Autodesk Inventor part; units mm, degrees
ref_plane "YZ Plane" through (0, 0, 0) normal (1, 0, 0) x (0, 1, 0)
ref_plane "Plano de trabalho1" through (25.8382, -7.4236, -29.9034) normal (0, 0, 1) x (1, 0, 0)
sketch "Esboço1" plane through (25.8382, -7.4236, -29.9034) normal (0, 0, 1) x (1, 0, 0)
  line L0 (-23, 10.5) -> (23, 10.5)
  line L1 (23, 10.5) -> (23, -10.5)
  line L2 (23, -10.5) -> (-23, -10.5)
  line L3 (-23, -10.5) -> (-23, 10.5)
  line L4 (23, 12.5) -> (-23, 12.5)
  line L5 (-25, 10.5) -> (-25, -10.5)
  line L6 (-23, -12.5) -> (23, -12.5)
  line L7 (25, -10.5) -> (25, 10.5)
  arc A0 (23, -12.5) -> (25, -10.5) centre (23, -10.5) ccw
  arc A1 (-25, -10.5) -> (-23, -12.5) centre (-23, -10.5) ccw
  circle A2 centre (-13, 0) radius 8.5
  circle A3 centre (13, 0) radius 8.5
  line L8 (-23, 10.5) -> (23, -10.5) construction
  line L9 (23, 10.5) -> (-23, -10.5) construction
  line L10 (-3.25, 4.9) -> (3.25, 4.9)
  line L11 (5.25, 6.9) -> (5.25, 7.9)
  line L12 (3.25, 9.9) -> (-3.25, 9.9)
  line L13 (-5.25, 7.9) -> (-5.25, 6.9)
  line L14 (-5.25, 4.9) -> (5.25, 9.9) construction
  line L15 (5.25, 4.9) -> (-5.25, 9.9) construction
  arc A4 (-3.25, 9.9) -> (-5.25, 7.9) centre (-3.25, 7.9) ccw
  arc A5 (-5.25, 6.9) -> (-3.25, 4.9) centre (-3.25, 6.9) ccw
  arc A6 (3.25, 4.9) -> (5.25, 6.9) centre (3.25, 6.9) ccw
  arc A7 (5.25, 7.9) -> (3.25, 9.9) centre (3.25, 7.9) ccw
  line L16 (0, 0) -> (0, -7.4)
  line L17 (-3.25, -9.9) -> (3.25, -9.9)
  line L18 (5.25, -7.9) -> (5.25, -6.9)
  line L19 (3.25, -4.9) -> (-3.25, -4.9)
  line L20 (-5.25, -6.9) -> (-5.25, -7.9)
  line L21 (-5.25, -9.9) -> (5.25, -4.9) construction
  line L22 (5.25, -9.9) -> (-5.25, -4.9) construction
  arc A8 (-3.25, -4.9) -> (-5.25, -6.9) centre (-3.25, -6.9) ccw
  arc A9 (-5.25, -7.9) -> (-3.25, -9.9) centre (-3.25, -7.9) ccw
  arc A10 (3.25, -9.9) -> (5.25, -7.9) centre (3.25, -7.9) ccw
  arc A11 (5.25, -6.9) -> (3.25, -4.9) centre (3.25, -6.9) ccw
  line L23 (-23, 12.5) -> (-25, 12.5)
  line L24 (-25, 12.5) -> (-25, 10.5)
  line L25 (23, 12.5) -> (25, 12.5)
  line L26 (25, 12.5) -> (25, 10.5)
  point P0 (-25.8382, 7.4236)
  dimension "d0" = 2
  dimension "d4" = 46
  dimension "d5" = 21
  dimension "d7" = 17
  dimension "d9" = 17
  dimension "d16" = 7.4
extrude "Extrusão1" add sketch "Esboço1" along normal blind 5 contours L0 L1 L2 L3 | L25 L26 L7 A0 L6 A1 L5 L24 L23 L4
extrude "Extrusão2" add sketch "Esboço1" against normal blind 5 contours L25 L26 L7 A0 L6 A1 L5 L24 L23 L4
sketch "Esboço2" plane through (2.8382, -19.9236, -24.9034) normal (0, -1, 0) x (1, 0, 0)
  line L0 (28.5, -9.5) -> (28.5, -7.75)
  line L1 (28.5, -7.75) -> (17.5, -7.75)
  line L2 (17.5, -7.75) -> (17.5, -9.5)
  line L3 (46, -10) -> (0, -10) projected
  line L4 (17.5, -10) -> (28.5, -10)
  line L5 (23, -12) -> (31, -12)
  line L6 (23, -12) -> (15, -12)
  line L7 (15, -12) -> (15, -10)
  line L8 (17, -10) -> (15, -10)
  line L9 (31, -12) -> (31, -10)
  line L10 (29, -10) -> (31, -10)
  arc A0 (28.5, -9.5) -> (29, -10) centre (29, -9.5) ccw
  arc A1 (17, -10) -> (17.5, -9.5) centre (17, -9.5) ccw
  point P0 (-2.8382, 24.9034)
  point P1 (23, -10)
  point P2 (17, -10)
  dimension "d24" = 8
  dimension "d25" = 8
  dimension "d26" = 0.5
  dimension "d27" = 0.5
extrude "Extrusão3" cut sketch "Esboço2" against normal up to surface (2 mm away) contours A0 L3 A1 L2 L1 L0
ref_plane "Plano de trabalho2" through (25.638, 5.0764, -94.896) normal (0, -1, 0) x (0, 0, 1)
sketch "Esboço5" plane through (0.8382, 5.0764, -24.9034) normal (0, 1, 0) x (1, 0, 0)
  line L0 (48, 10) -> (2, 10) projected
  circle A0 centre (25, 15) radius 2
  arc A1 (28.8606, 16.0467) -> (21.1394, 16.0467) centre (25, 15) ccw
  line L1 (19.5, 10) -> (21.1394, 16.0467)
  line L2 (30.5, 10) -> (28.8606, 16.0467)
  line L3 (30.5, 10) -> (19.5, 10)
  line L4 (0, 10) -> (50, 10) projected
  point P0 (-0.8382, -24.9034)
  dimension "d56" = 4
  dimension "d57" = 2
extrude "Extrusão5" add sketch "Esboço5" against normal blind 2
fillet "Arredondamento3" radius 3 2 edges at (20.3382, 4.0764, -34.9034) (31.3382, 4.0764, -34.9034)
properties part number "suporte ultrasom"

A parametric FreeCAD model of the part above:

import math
import FreeCAD as App
import Part
import Sketcher
Q = App.Units.Quantity


def edges_at(feature, points):
    """Names of the edges that pass closest to the given points."""
    edges = feature.Shape.Edges
    near = lambda p: min(range(len(edges)), key=lambda i: edges[i].distToShape(Part.Vertex(*p))[0])
    return sorted({f"Edge{near(p) + 1}" for p in points})

doc = App.newDocument("Part")
body = doc.addObject("PartDesign::Body", "Body")

sketch1 = body.newObject("Sketcher::SketchObject", "Sketch")
sketch1.AttachmentSupport = (doc.getObject("XY_Plane"), [""])
sketch1.MapMode = "FlatFace"
sketch1.AttachmentOffset = App.Placement(App.Vector(0, 0, -29.9034), App.Rotation())
sketch1.addGeometry([
    Part.LineSegment(App.Vector(50.8, 5.1, 0), App.Vector(0.8, 5.1, 0)),
    Part.LineSegment(App.Vector(0.8, 5.1, 0), App.Vector(0.8, -17.9, 0)),
    Part.ArcOfCircle(Part.Circle(App.Vector(2.8, -17.9, 0), App.Vector(0, 0, 1), 2), math.radians(180), math.radians(270)),
    Part.LineSegment(App.Vector(2.8, -19.9, 0), App.Vector(48.8, -19.9, 0)),
    Part.ArcOfCircle(Part.Circle(App.Vector(48.8, -17.9, 0), App.Vector(0, 0, 1), 2), math.radians(-90), math.radians(0)),
    Part.LineSegment(App.Vector(50.8, -17.9, 0), App.Vector(50.8, 5.1, 0)),
    Part.LineSegment(App.Vector(29.1, -17.3, 0), App.Vector(22.6, -17.3, 0)),
    Part.ArcOfCircle(Part.Circle(App.Vector(22.6, -15.3, 0), App.Vector(0, 0, 1), 2), math.radians(180), math.radians(270)),
    Part.LineSegment(App.Vector(20.6, -15.3, 0), App.Vector(20.6, -14.3, 0)),
    Part.ArcOfCircle(Part.Circle(App.Vector(22.6, -14.3, 0), App.Vector(0, 0, 1), 2), math.radians(90), math.radians(180)),
    Part.LineSegment(App.Vector(22.6, -12.3, 0), App.Vector(29.1, -12.3, 0)),
    Part.ArcOfCircle(Part.Circle(App.Vector(29.1, -14.3, 0), App.Vector(0, 0, 1), 2), math.radians(0), math.radians(90)),
    Part.LineSegment(App.Vector(31.1, -14.3, 0), App.Vector(31.1, -15.3, 0)),
    Part.ArcOfCircle(Part.Circle(App.Vector(29.1, -15.3, 0), App.Vector(0, 0, 1), 2), math.radians(-90), math.radians(0)),
    Part.Circle(App.Vector(12.8, -7.4, 0), App.Vector(0, 0, 1), 8.5),
    Part.Circle(App.Vector(38.8, -7.4, 0), App.Vector(0, 0, 1), 8.5),
    Part.LineSegment(App.Vector(29.1, -2.5, 0), App.Vector(22.6, -2.5, 0)),
    Part.ArcOfCircle(Part.Circle(App.Vector(22.6, -0.5, 0), App.Vector(0, 0, 1), 2), math.radians(180), math.radians(270)),
    Part.LineSegment(App.Vector(20.6, -0.5, 0), App.Vector(20.6, 0.5, 0)),
    Part.ArcOfCircle(Part.Circle(App.Vector(22.6, 0.5, 0), App.Vector(0, 0, 1), 2), math.radians(90), math.radians(180)),
    Part.LineSegment(App.Vector(22.6, 2.5, 0), App.Vector(29.1, 2.5, 0)),
    Part.ArcOfCircle(Part.Circle(App.Vector(29.1, 0.5, 0), App.Vector(0, 0, 1), 2), math.radians(0), math.radians(90)),
    Part.LineSegment(App.Vector(31.1, 0.5, 0), App.Vector(31.1, -0.5, 0)),
    Part.ArcOfCircle(Part.Circle(App.Vector(29.1, -0.5, 0), App.Vector(0, 0, 1), 2), math.radians(-90), math.radians(0)),
], False)
sketch1.addConstraint([
    Sketcher.Constraint("Coincident", 0, 2, 1, 1),
    Sketcher.Constraint("Tangent", 1, 2, 2, 1),
    Sketcher.Constraint("Tangent", 2, 2, 3, 1),
    Sketcher.Constraint("Tangent", 3, 2, 4, 1),
    Sketcher.Constraint("Tangent", 4, 2, 5, 1),
    Sketcher.Constraint("Coincident", 5, 2, 0, 1),
    Sketcher.Constraint("Tangent", 6, 2, 7, 2),
    Sketcher.Constraint("Tangent", 7, 1, 8, 1),
    Sketcher.Constraint("Tangent", 8, 2, 9, 2),
    Sketcher.Constraint("Tangent", 9, 1, 10, 1),
    Sketcher.Constraint("Tangent", 10, 2, 11, 2),
    Sketcher.Constraint("Tangent", 11, 1, 12, 1),
    Sketcher.Constraint("Tangent", 12, 2, 13, 2),
    Sketcher.Constraint("Tangent", 13, 1, 6, 1),
    Sketcher.Constraint("Tangent", 16, 2, 17, 2),
    Sketcher.Constraint("Tangent", 17, 1, 18, 1),
    Sketcher.Constraint("Tangent", 18, 2, 19, 2),
    Sketcher.Constraint("Tangent", 19, 1, 20, 1),
    Sketcher.Constraint("Tangent", 20, 2, 21, 2),
    Sketcher.Constraint("Tangent", 21, 1, 22, 1),
    Sketcher.Constraint("Tangent", 22, 2, 23, 2),
    Sketcher.Constraint("Tangent", 23, 1, 16, 1),
    Sketcher.Constraint("Horizontal", 0),
    Sketcher.Constraint("Vertical", 1),
    Sketcher.Constraint("Horizontal", 3),
    Sketcher.Constraint("Vertical", 5),
    Sketcher.Constraint("Horizontal", 6),
    Sketcher.Constraint("Vertical", 8),
    Sketcher.Constraint("Horizontal", 10),
    Sketcher.Constraint("Vertical", 12),
    Sketcher.Constraint("Horizontal", 16),
    Sketcher.Constraint("Vertical", 18),
    Sketcher.Constraint("Horizontal", 20),
    Sketcher.Constraint("Vertical", 22),
    Sketcher.Constraint("Equal", 2, 4),
    Sketcher.Constraint("Equal", 4, 7),
    Sketcher.Constraint("Equal", 7, 9),
    Sketcher.Constraint("Equal", 9, 11),
    Sketcher.Constraint("Equal", 11, 13),
    Sketcher.Constraint("Equal", 14, 15),
    Sketcher.Constraint("Equal", 13, 17),
    Sketcher.Constraint("Equal", 17, 19),
    Sketcher.Constraint("Equal", 19, 21),
    Sketcher.Constraint("Equal", 21, 23),
    Sketcher.Constraint("Horizontal", 14, 3, 15, 3),
    Sketcher.Constraint("Vertical", 9, 3, 17, 3),
    Sketcher.Constraint("Vertical", 13, 3, 21, 3),
    Sketcher.Constraint("Equal", 12, 18),
    Sketcher.Constraint("Diameter", 14, Q("17 mm")),
    Sketcher.Constraint("Radius", 2, Q("2 mm")),
    Sketcher.Constraint("DistanceX", 3, 1, 3, 2, Q("46 mm")),
    Sketcher.Constraint("DistanceY", 1, 2, 1, 1, Q("23 mm")),
    Sketcher.Constraint("DistanceY", 8, 1, 8, 2, Q("1 mm")),
    Sketcher.Constraint("DistanceX", 6, 2, 6, 1, Q("6.5 mm")),
    Sketcher.Constraint("DistanceX", 2, 3, 14, 3, Q("10 mm")),
    Sketcher.Constraint("DistanceX", 15, 3, 4, 3, Q("10 mm")),
    Sketcher.Constraint("DistanceY", 2, 3, 7, 3, Q("2.6 mm")),
    Sketcher.Constraint("DistanceY", 9, 3, 14, 3, Q("6.9 mm")),
    Sketcher.Constraint("DistanceY", 14, 3, 17, 3, Q("6.9 mm")),
    Sketcher.Constraint("DistanceX", 2, 3, 7, 3, Q("19.75 mm")),
    Sketcher.Constraint("DistanceX", -1, 1, 2, 3, Q("2.8382 mm")),
    Sketcher.Constraint("DistanceY", 2, 3, -1, 1, Q("17.9236 mm")),
])
pad1 = body.newObject("PartDesign::Pad", "Pad")
pad1.Profile = sketch1
pad1.Length = 5

sketch2 = body.newObject("Sketcher::SketchObject", "Sketch001")
sketch2.AttachmentSupport = (doc.getObject("XY_Plane"), [""])
sketch2.MapMode = "FlatFace"
sketch2.AttachmentOffset = App.Placement(App.Vector(0, 0, -29.9034), App.Rotation())
sketch2.addGeometry([
    Part.LineSegment(App.Vector(50.8, 5.1, 0), App.Vector(0.8, 5.1, 0)),
    Part.LineSegment(App.Vector(0.8, 5.1, 0), App.Vector(0.8, -17.9, 0)),
    Part.ArcOfCircle(Part.Circle(App.Vector(2.8, -17.9, 0), App.Vector(0, 0, 1), 2), math.radians(180), math.radians(270)),
    Part.LineSegment(App.Vector(2.8, -19.9, 0), App.Vector(48.8, -19.9, 0)),
    Part.ArcOfCircle(Part.Circle(App.Vector(48.8, -17.9, 0), App.Vector(0, 0, 1), 2), math.radians(-90), math.radians(0)),
    Part.LineSegment(App.Vector(50.8, -17.9, 0), App.Vector(50.8, 5.1, 0)),
    Part.LineSegment(App.Vector(2.8, -17.9, 0), App.Vector(2.8, 3.1, 0)),
    Part.LineSegment(App.Vector(2.8, 3.1, 0), App.Vector(48.8, 3.1, 0)),
    Part.LineSegment(App.Vector(48.8, 3.1, 0), App.Vector(48.8, -17.9, 0)),
    Part.LineSegment(App.Vector(48.8, -17.9, 0), App.Vector(2.8, -17.9, 0)),
], False)
sketch2.addConstraint([
    Sketcher.Constraint("Coincident", 0, 2, 1, 1),
    Sketcher.Constraint("Tangent", 1, 2, 2, 1),
    Sketcher.Constraint("Tangent", 2, 2, 3, 1),
    Sketcher.Constraint("Tangent", 3, 2, 4, 1),
    Sketcher.Constraint("Tangent", 4, 2, 5, 1),
    Sketcher.Constraint("Coincident", 5, 2, 0, 1),
    Sketcher.Constraint("Coincident", 6, 2, 7, 1),
    Sketcher.Constraint("Coincident", 7, 2, 8, 1),
    Sketcher.Constraint("Coincident", 8, 2, 9, 1),
    Sketcher.Constraint("Coincident", 9, 2, 6, 1),
    Sketcher.Constraint("Horizontal", 0),
    Sketcher.Constraint("Vertical", 1),
    Sketcher.Constraint("Horizontal", 3),
    Sketcher.Constraint("Vertical", 5),
    Sketcher.Constraint("Vertical", 6),
    Sketcher.Constraint("Horizontal", 7),
    Sketcher.Constraint("Vertical", 8),
    Sketcher.Constraint("Horizontal", 9),
    Sketcher.Constraint("Coincident", 8, 2, 4, 3),
    Sketcher.Constraint("Coincident", 9, 2, 2, 3),
    Sketcher.Constraint("Radius", 2, Q("2 mm")),
    Sketcher.Constraint("DistanceX", 3, 1, 3, 2, Q("46 mm")),
    Sketcher.Constraint("DistanceY", 6, 1, 6, 2, Q("21 mm")),
    Sketcher.Constraint("DistanceY", 6, 2, 0, 2, Q("2 mm")),
    Sketcher.Constraint("DistanceX", -1, 1, 2, 3, Q("2.8382 mm")),
    Sketcher.Constraint("DistanceY", 2, 3, -1, 1, Q("17.9236 mm")),
])
pad2 = body.newObject("PartDesign::Pad", "Pad001")
pad2.Profile = sketch2
pad2.Length = 5
pad2.Reversed = True

sketch3 = body.newObject("Sketcher::SketchObject", "Sketch002")
sketch3.AttachmentSupport = (doc.getObject("XZ_Plane"), [""])
sketch3.MapMode = "FlatFace"
sketch3.AttachmentOffset = App.Placement(App.Vector(0, 0, 19.9236), App.Rotation())
sketch3.addGeometry([
    Part.ArcOfCircle(Part.Circle(App.Vector(31.8, -34.4, 0), App.Vector(0, 0, 1), 0.5), math.radians(180), math.radians(270)),
    Part.LineSegment(App.Vector(31.3, -34.4, 0), App.Vector(31.3, -32.7, 0)),
    Part.LineSegment(App.Vector(31.3, -32.7, 0), App.Vector(20.3, -32.7, 0)),
    Part.LineSegment(App.Vector(20.3, -32.7, 0), App.Vector(20.3, -34.4, 0)),
    Part.ArcOfCircle(Part.Circle(App.Vector(19.8, -34.4, 0), App.Vector(0, 0, 1), 0.5), math.radians(-90), math.radians(0)),
    Part.LineSegment(App.Vector(19.8, -34.9, 0), App.Vector(31.8, -34.9, 0)),
], False)
sketch3.addConstraint([
    Sketcher.Constraint("Tangent", 0, 1, 1, 1),
    Sketcher.Constraint("Coincident", 1, 2, 2, 1),
    Sketcher.Constraint("Coincident", 2, 2, 3, 1),
    Sketcher.Constraint("Tangent", 3, 2, 4, 2),
    Sketcher.Constraint("Tangent", 4, 1, 5, 1),
    Sketcher.Constraint("Tangent", 5, 2, 0, 2),
    Sketcher.Constraint("Vertical", 1),
    Sketcher.Constraint("Horizontal", 2),
    Sketcher.Constraint("Vertical", 3),
    Sketcher.Constraint("Horizontal", 5),
    Sketcher.Constraint("Equal", 0, 4),
    Sketcher.Constraint("Radius", 0, Q("0.5 mm")),
    Sketcher.Constraint("DistanceX", 2, 2, 2, 1, Q("11 mm")),
    Sketcher.Constraint("DistanceY", 1, 1, 1, 2, Q("1.75 mm")),
    Sketcher.Constraint("DistanceX", -1, 1, 0, 3, Q("31.8382 mm")),
    Sketcher.Constraint("DistanceY", 0, 3, -1, 1, Q("34.4034 mm")),
])
pocket1 = body.newObject("PartDesign::Pocket", "Pocket")
pocket1.Profile = sketch3
pocket1.Length = 2

sketch4 = body.newObject("Sketcher::SketchObject", "Sketch003")
sketch4.AttachmentSupport = (doc.getObject("XZ_Plane"), [""])
sketch4.MapMode = "FlatFace"
sketch4.AttachmentOffset = App.Placement(App.Vector(0, 0, -5.0764), App.Rotation())
sketch4.addGeometry([
    Part.LineSegment(App.Vector(20.3, -34.9, 0), App.Vector(31.3, -34.9, 0)),
    Part.LineSegment(App.Vector(31.3, -34.9, 0), App.Vector(29.7, -41, 0)),
    Part.ArcOfCircle(Part.Circle(App.Vector(25.8, -39.9, 0), App.Vector(0, 0, 1), 4), math.radians(-165), math.radians(-15)),
    Part.LineSegment(App.Vector(22, -41, 0), App.Vector(20.3, -34.9, 0)),
    Part.Circle(App.Vector(25.8, -39.9, 0), App.Vector(0, 0, 1), 2),
], False)
sketch4.addConstraint([
    Sketcher.Constraint("Coincident", 0, 2, 1, 1),
    Sketcher.Constraint("Tangent", 1, 2, 2, 2),
    Sketcher.Constraint("Tangent", 2, 1, 3, 1),
    Sketcher.Constraint("Coincident", 3, 2, 0, 1),
    Sketcher.Constraint("Horizontal", 0),
    Sketcher.Constraint("Coincident", 4, 3, 2, 3),
    Sketcher.Constraint("Horizontal", 1, 2, 2, 1),
    Sketcher.Constraint("Diameter", 4, Q("4 mm")),
    Sketcher.Constraint("Radius", 2, Q("4 mm")),
    Sketcher.Constraint("DistanceX", 0, 1, 0, 2, Q("11 mm")),
    Sketcher.Constraint("DistanceY", 2, 3, 0, 2, Q("5 mm")),
    Sketcher.Constraint("DistanceY", 1, 2, -1, 1, Q("40.95 mm")),
    Sketcher.Constraint("DistanceX", -1, 1, 2, 3, Q("25.8382 mm")),
])
pad3 = body.newObject("PartDesign::Pad", "Pad002")
pad3.Profile = sketch4
pad3.Length = 2
doc.recompute()

fillet = body.newObject("PartDesign::Fillet", "Fillet")
fillet.Base = (pad3, edges_at(pad3, [(20.338, 4.076, -34.903), (31.338, 4.076, -34.903)]))
fillet.Radius = 3

doc.recompute()
